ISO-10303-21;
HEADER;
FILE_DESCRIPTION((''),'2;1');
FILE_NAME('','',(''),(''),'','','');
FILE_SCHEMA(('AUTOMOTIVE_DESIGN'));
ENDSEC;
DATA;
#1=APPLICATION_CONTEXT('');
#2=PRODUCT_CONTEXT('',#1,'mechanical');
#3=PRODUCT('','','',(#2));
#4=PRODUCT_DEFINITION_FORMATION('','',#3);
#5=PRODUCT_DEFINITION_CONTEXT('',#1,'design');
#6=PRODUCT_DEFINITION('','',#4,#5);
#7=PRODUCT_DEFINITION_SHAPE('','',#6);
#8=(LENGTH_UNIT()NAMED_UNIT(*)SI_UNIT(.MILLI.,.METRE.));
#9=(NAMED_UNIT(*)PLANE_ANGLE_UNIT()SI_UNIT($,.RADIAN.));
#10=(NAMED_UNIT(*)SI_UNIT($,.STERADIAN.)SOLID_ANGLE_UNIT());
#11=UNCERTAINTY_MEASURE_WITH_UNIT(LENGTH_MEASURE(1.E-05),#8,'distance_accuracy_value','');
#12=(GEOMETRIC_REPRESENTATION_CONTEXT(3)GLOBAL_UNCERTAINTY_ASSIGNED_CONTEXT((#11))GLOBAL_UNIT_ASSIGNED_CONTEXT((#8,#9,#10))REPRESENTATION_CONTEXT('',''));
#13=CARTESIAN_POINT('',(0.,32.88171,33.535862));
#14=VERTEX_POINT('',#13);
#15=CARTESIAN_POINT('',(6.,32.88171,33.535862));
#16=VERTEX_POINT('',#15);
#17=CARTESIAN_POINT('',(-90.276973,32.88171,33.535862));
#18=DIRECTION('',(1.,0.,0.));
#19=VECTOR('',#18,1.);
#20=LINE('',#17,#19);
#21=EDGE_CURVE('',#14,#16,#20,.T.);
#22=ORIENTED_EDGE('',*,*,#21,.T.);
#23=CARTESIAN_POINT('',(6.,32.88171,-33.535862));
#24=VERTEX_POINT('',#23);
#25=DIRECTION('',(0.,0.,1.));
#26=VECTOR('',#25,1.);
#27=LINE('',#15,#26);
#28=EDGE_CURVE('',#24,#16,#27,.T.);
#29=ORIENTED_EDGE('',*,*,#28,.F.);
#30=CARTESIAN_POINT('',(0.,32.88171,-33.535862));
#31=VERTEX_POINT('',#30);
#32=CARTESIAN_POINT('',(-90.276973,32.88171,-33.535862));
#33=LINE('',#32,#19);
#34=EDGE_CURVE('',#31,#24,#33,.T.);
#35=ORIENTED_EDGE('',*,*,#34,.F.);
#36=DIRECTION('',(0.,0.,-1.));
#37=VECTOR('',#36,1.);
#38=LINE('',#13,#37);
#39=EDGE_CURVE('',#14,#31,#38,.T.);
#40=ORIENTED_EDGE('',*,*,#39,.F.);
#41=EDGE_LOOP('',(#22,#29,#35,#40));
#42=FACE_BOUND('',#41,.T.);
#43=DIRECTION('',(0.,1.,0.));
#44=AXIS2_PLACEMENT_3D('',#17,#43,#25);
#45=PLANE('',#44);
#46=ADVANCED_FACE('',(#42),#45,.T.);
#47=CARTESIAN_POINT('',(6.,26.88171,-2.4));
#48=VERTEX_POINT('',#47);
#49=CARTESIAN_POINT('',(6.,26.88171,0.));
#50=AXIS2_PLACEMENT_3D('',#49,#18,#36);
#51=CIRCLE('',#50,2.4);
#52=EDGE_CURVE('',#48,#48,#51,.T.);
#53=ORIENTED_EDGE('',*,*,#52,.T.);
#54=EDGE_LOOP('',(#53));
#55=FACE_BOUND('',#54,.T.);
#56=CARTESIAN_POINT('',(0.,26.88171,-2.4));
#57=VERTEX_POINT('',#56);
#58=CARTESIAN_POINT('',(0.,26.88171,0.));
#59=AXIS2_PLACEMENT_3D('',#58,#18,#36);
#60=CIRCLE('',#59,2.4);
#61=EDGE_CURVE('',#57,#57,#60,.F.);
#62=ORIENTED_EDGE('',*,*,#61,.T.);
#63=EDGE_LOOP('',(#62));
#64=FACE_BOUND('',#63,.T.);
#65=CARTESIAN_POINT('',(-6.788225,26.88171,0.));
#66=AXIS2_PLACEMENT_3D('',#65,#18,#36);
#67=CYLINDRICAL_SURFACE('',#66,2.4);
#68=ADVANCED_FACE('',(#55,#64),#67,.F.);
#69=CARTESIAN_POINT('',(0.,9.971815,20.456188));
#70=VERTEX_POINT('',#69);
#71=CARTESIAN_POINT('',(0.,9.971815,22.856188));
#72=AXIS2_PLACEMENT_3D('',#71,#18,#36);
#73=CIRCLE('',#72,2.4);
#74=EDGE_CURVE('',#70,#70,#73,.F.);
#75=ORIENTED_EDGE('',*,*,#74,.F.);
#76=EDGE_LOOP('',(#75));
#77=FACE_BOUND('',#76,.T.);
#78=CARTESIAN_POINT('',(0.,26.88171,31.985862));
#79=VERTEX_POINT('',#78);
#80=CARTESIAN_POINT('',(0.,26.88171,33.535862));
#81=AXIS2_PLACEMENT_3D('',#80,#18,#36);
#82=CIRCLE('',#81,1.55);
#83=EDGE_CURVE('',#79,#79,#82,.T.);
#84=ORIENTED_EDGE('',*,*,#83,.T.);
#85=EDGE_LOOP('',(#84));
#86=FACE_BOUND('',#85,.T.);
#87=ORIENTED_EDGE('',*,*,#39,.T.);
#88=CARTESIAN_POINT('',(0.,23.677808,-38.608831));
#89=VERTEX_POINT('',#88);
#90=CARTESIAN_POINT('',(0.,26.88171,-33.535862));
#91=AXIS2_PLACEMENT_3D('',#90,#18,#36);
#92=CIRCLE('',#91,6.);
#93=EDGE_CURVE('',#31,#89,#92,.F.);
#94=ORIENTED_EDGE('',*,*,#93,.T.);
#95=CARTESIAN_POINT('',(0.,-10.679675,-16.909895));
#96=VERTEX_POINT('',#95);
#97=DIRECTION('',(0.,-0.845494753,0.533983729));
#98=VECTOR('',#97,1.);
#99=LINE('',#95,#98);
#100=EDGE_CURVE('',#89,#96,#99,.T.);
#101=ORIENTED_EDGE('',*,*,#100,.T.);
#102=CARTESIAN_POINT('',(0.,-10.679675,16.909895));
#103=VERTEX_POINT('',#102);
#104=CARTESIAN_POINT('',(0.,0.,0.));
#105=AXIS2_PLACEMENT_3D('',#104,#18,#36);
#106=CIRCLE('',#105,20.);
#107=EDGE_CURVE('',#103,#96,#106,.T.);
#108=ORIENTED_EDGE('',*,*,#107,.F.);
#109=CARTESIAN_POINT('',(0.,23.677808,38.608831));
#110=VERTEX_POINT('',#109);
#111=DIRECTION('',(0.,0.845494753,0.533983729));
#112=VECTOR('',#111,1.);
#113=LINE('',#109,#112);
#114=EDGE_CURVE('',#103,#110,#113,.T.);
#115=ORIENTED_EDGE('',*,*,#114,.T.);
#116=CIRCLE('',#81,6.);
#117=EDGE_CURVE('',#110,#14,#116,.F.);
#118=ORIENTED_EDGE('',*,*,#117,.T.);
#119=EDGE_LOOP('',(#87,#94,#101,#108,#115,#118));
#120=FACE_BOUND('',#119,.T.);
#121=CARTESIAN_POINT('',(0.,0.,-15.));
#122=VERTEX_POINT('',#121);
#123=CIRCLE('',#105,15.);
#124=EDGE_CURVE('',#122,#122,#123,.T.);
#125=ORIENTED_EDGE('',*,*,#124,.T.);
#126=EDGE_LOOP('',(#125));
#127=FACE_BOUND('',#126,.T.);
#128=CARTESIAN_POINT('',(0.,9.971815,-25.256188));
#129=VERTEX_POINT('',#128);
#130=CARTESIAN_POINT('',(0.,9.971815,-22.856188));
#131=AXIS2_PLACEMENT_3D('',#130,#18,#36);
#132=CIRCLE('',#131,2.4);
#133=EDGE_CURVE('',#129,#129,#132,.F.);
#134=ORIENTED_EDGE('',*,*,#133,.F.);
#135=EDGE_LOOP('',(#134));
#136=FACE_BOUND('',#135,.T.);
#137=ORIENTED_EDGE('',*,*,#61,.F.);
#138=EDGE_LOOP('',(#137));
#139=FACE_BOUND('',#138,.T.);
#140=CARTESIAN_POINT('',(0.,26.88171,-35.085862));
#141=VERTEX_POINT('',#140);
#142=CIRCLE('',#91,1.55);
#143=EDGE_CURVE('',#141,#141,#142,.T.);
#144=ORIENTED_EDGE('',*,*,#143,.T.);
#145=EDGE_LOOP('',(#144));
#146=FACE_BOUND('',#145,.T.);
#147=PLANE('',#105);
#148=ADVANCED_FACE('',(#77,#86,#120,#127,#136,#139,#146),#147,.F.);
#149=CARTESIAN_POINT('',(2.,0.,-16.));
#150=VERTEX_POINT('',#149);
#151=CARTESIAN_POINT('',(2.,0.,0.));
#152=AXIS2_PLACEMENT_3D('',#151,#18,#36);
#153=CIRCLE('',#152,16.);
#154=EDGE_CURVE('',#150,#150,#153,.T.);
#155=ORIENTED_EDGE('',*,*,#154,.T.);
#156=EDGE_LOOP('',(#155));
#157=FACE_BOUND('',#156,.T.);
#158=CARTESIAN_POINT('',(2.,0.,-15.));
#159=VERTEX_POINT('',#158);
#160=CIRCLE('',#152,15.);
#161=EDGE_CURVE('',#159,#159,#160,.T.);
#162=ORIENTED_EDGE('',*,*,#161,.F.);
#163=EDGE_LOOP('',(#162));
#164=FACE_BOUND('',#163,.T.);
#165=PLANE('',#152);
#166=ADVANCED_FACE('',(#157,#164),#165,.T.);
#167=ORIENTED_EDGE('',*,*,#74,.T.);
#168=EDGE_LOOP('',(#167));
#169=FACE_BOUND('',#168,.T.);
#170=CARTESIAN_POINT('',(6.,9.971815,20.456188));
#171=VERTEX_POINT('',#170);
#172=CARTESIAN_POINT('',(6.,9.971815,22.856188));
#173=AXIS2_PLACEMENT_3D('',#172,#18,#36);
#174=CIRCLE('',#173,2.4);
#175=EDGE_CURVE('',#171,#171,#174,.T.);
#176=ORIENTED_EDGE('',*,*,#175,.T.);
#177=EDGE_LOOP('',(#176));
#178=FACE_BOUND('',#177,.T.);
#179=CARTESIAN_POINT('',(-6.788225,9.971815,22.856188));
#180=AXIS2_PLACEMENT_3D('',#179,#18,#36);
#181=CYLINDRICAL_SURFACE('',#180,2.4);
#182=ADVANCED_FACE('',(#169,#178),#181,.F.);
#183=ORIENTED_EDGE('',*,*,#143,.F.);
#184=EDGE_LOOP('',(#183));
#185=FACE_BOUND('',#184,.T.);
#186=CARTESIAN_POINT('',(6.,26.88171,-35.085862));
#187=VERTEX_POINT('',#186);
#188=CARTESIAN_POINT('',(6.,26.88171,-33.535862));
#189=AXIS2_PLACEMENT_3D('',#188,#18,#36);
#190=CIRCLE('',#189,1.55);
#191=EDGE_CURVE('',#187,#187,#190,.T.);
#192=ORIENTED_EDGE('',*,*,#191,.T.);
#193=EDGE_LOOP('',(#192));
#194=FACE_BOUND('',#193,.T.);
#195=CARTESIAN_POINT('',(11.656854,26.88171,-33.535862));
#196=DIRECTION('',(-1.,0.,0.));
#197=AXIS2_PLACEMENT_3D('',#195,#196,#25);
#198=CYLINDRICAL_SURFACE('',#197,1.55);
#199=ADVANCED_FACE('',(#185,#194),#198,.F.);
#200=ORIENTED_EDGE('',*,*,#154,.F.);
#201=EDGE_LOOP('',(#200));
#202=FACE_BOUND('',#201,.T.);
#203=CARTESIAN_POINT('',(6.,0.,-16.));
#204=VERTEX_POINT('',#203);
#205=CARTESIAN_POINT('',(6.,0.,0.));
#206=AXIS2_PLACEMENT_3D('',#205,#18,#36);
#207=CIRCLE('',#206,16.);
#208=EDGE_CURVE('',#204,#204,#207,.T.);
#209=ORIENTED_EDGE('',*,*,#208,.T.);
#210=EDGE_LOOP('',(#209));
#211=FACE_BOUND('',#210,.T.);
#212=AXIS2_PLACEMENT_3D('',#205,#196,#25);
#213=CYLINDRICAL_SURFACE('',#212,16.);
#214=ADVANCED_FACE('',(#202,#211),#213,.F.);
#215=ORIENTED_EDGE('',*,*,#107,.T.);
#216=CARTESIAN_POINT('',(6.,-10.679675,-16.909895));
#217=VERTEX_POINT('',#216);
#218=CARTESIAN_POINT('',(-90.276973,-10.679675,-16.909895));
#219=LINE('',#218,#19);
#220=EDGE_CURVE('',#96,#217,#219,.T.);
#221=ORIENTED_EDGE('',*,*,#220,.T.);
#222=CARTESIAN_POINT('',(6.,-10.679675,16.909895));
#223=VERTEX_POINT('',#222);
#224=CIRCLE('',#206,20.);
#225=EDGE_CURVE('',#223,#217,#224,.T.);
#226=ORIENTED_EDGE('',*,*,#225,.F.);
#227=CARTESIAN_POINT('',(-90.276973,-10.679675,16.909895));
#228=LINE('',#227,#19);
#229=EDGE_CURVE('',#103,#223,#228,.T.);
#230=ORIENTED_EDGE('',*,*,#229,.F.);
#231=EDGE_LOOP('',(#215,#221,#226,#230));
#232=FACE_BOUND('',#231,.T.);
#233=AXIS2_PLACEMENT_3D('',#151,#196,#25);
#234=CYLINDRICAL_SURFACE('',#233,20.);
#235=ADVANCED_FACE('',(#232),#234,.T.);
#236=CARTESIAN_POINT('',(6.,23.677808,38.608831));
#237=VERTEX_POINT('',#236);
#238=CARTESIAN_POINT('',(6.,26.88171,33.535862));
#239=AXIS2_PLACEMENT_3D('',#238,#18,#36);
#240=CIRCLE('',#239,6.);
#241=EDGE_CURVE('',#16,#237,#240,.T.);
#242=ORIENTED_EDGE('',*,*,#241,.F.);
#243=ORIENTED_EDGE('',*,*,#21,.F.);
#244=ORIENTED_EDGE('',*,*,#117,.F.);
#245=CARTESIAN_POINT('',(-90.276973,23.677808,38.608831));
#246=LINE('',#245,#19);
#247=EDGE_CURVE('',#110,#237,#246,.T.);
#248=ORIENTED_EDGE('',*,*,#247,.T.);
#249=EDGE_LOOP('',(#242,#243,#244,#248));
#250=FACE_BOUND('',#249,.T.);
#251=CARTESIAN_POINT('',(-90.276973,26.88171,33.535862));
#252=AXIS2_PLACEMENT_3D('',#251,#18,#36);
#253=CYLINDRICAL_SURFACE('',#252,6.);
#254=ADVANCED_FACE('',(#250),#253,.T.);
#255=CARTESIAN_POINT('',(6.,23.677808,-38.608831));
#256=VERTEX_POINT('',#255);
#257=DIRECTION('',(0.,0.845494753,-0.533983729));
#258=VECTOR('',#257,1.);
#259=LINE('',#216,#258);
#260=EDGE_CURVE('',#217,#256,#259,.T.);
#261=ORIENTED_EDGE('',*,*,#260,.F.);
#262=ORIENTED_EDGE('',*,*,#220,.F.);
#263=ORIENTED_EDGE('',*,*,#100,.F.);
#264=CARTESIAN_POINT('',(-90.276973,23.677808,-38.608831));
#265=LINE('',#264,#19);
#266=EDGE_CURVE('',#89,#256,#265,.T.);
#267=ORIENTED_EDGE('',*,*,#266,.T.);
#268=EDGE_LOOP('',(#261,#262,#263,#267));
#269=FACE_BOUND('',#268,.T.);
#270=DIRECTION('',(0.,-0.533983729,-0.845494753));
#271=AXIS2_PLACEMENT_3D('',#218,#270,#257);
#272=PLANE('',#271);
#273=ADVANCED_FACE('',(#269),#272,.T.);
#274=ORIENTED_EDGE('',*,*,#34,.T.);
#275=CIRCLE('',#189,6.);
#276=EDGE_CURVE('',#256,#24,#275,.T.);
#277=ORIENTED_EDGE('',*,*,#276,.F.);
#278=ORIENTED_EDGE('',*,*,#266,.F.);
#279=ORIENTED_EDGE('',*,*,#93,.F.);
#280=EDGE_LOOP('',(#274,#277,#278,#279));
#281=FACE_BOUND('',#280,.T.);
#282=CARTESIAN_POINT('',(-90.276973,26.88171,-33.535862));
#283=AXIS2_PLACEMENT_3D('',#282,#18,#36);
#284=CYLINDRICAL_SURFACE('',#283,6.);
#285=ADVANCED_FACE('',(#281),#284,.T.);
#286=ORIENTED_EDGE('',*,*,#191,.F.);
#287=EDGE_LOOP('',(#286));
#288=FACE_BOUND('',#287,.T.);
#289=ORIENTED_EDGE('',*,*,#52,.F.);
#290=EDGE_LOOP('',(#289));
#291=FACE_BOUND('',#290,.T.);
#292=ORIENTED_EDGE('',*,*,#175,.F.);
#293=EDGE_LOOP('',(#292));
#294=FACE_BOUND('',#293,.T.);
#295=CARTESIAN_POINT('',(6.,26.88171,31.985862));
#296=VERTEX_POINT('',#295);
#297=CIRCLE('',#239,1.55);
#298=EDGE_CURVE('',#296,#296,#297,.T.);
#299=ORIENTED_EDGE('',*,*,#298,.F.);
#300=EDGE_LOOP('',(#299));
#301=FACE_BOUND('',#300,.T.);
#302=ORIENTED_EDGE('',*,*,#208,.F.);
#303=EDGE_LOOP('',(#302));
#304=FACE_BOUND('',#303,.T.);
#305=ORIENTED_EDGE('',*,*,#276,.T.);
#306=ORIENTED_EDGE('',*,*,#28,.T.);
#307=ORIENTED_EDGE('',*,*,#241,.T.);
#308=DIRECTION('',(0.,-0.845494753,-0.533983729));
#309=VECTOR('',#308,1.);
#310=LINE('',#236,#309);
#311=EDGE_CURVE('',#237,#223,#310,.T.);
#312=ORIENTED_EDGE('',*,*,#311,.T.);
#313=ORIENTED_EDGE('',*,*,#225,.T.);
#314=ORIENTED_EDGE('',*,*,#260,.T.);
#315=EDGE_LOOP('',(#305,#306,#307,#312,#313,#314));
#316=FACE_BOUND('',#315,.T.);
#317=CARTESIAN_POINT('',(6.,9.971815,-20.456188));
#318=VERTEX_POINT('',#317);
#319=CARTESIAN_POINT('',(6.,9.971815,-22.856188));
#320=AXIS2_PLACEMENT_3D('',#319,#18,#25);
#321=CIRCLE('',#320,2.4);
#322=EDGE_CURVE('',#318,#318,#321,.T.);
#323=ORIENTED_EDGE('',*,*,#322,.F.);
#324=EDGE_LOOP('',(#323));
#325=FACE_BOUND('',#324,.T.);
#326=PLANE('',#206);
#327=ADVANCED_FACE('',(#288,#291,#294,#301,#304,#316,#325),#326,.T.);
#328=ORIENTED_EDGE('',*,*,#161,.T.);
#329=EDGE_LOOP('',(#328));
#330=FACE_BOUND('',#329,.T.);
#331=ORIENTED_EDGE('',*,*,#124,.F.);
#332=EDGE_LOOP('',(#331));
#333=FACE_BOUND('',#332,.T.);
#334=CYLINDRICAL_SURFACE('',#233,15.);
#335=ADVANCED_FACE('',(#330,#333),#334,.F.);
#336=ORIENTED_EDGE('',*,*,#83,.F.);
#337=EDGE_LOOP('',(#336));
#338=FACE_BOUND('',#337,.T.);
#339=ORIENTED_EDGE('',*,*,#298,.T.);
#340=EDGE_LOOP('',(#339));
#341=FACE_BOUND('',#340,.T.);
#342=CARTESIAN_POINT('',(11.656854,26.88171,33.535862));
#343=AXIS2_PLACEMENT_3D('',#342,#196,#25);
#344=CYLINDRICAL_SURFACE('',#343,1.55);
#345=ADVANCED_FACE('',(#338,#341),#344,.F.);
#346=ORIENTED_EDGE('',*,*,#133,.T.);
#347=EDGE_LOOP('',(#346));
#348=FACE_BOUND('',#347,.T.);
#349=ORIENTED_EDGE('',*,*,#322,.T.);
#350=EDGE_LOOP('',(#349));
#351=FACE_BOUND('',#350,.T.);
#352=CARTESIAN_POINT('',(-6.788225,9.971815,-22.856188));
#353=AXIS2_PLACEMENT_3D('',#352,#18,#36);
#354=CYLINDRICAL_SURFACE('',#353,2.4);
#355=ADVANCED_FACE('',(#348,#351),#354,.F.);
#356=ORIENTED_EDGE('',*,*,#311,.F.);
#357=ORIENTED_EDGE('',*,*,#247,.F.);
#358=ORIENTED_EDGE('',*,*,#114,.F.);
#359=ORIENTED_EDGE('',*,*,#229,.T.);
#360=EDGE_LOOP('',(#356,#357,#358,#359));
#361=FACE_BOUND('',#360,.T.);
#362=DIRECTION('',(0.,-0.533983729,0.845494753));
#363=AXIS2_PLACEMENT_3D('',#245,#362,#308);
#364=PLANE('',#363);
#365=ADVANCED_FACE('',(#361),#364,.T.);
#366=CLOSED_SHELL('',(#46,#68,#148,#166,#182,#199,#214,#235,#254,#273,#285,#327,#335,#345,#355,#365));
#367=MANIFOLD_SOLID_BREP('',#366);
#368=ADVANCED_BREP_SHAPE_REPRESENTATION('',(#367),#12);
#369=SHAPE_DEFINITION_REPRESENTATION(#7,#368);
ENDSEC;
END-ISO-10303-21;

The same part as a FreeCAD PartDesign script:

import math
import FreeCAD as App
import Part
import Sketcher

V = App.Vector

doc = App.newDocument("Part")
params = doc.addObject("Spreadsheet::Sheet", "Params")
for row, (alias, value) in enumerate([
    ("sketch1_diameter", "40 mm"),
    ("sketch1_diameter2", "30 mm"),
    ("pad1_length", "2 mm"),
    ("sketch2_diameter", "40 mm"),
    ("sketch2_diameter2", "32 mm"),
    ("pad2_length", "4 mm"),
    ("sketch3_diameter", "4 mm"),
    ("sketch3_radius", "20 mm"),
    ("sketch3_radius2", "6 mm"),
    ("pad3_length", "6 mm"),
    ("sketch4_diameter", "4.8 mm"),
    ("pocket1_length", "6 mm"),
    ("sketch5_diameter", "4 mm"),
    ("sketch5_diameter2", "3.1 mm"),
    ("pad4_length", "6 mm"),
], start=1):
    params.set(f"A{row}", alias)
    params.set(f"B{row}", "=" + value)
    params.setAlias(f"B{row}", alias)

body = doc.addObject("PartDesign::Body", "Body")

# Sketch on YZ plane
sketch1 = body.newObject("Sketcher::SketchObject", "Sketch")
sketch1.AttachmentSupport = (doc.getObject("YZ_Plane"), [""])
sketch1.MapMode = "FlatFace"
sketch1.addGeometry(Part.Circle(V(0, 0, 0), V(0, 0, 1), 20), False)
sketch1.addGeometry(Part.Circle(V(0, 0, 0), V(0, 0, 1), 15), False)
sketch1.addConstraint(Sketcher.Constraint("Coincident", 0, 3, -1, 1))
sketch1.addConstraint(Sketcher.Constraint("Coincident", 1, 3, -1, 1))
sketch1.addConstraint(Sketcher.Constraint("Diameter", 0, 40.0))
sketch1.addConstraint(Sketcher.Constraint("Diameter", 1, 30.0))
sketch1.setExpression("Constraints[2]", "Params.sketch1_diameter")
sketch1.setExpression("Constraints[3]", "Params.sketch1_diameter2")
pad1 = body.newObject("PartDesign::Pad", "Pad")
pad1.Profile = sketch1
pad1.setExpression("Length", "Params.pad1_length")

# Sketch on YZ plane
sketch2 = body.newObject("Sketcher::SketchObject", "Sketch001")
sketch2.AttachmentSupport = (doc.getObject("YZ_Plane"), [""])
sketch2.MapMode = "FlatFace"
sketch2.AttachmentOffset = App.Placement(V(0, 0, 2), App.Rotation())
sketch2.addGeometry(Part.Circle(V(0, 0, 0), V(0, 0, 1), 20), False)
sketch2.addGeometry(Part.Circle(V(0, 0, 0), V(0, 0, 1), 16), False)
sketch2.addConstraint(Sketcher.Constraint("Coincident", 0, 3, -1, 1))
sketch2.addConstraint(Sketcher.Constraint("Coincident", 1, 3, -1, 1))
sketch2.addConstraint(Sketcher.Constraint("Diameter", 0, 40.0))
sketch2.addConstraint(Sketcher.Constraint("Diameter", 1, 32.0))
sketch2.setExpression("Constraints[2]", "Params.sketch2_diameter")
sketch2.setExpression("Constraints[3]", "Params.sketch2_diameter2")
pad2 = body.newObject("PartDesign::Pad", "Pad001")
pad2.Profile = sketch2
pad2.setExpression("Length", "Params.pad2_length")

# Sketch on YZ plane
sketch3 = body.newObject("Sketcher::SketchObject", "Sketch002")
sketch3.AttachmentSupport = (doc.getObject("YZ_Plane"), [""])
sketch3.MapMode = "FlatFace"
sketch3.AttachmentOffset = App.Placement(V(0, 0, 6), App.Rotation())
sketch3.addGeometry(Part.LineSegment(V(23.7, 38.6, 0), V(-10.7, 16.9, 0)), False)
sketch3.addGeometry(Part.ArcOfCircle(Part.Circle(V(0, 0, 0), V(0, 0, 1), 20), math.radians(-122), math.radians(122)), False)
sketch3.addGeometry(Part.LineSegment(V(-10.7, -16.9, 0), V(23.7, -38.6, 0)), False)
sketch3.addGeometry(Part.ArcOfCircle(Part.Circle(V(26.9, -33.5, 0), V(0, 0, 1), 6), math.radians(-122), math.radians(0)), False)
sketch3.addGeometry(Part.LineSegment(V(32.9, -33.5, 0), V(32.9, 33.5, 0)), False)
sketch3.addGeometry(Part.ArcOfCircle(Part.Circle(V(26.9, 33.5, 0), V(0, 0, 1), 6), math.radians(0), math.radians(122)), False)
sketch3.addGeometry(Part.Circle(V(26.9, 33.5, 0), V(0, 0, 1), 2), False)
sketch3.addGeometry(Part.Circle(V(26.9, -33.5, 0), V(0, 0, 1), 2), False)
sketch3.addConstraint(Sketcher.Constraint("Tangent", 0, 2, 1, 2))
sketch3.addConstraint(Sketcher.Constraint("Tangent", 1, 1, 2, 1))
sketch3.addConstraint(Sketcher.Constraint("Tangent", 2, 2, 3, 1))
sketch3.addConstraint(Sketcher.Constraint("Tangent", 3, 2, 4, 1))
sketch3.addConstraint(Sketcher.Constraint("Tangent", 4, 2, 5, 1))
sketch3.addConstraint(Sketcher.Constraint("Tangent", 5, 2, 0, 1))
sketch3.addConstraint(Sketcher.Constraint("Vertical", 4))
sketch3.addConstraint(Sketcher.Constraint("Coincident", 1, 3, -1, 1))
sketch3.addConstraint(Sketcher.Constraint("Coincident", 6, 3, 5, 3))
sketch3.addConstraint(Sketcher.Constraint("Coincident", 7, 3, 3, 3))
sketch3.addConstraint(Sketcher.Constraint("Equal", 3, 5))
sketch3.addConstraint(Sketcher.Constraint("Equal", 6, 7))
sketch3.addConstraint(Sketcher.Constraint("Vertical", 0, 2, 1, 1))
sketch3.addConstraint(Sketcher.Constraint("Diameter", 6, 4.0))
sketch3.addConstraint(Sketcher.Constraint("Radius", 1, 20.0))
sketch3.addConstraint(Sketcher.Constraint("Radius", 3, 6.0))
sketch3.addConstraint(Sketcher.Constraint("Distance", 0, 40.63595))
sketch3.addConstraint(Sketcher.Constraint("DistanceY", 4, 1, 4, 2, 67.071725))
sketch3.setExpression("Constraints[13]", "Params.sketch3_diameter")
sketch3.setExpression("Constraints[14]", "Params.sketch3_radius")
sketch3.setExpression("Constraints[15]", "Params.sketch3_radius2")
pad3 = body.newObject("PartDesign::Pad", "Pad002")
pad3.Profile = sketch3
pad3.setExpression("Length", "Params.pad3_length")
pad3.Reversed = True

# Sketch on YZ plane
sketch4 = body.newObject("Sketcher::SketchObject", "Sketch003")
sketch4.AttachmentSupport = (doc.getObject("YZ_Plane"), [""])
sketch4.MapMode = "FlatFace"
sketch4.AttachmentOffset = App.Placement(V(0, 0, 6), App.Rotation())
sketch4.addGeometry(Part.Circle(V(10, 22.9, 0), V(0, 0, 1), 2.4), False)
sketch4.addGeometry(Part.Circle(V(10, -22.9, 0), V(0, 0, 1), 2.4), False)
sketch4.addGeometry(Part.Circle(V(26.9, 0, 0), V(0, 0, 1), 2.4), False)
sketch4.addConstraint(Sketcher.Constraint("Equal", 0, 1))
sketch4.addConstraint(Sketcher.Constraint("Equal", 1, 2))
sketch4.addConstraint(Sketcher.Constraint("Symmetric", 0, 3, 1, 3, -1))
sketch4.addConstraint(Sketcher.Constraint("PointOnObject", 2, 3, -1))
sketch4.addConstraint(Sketcher.Constraint("Diameter", 0, 4.8))
sketch4.addConstraint(Sketcher.Constraint("DistanceX", -1, 1, 2, 3, 26.88171))
sketch4.addConstraint(Sketcher.Constraint("DistanceX", -1, 1, 0, 3, 9.971815))
sketch4.addConstraint(Sketcher.Constraint("DistanceY", -1, 1, 0, 3, 22.856188))
sketch4.setExpression("Constraints[4]", "Params.sketch4_diameter")
pocket1 = body.newObject("PartDesign::Pocket", "Pocket")
pocket1.Profile = sketch4
pocket1.setExpression("Length", "Params.pocket1_length")

# Sketch on YZ plane
sketch5 = body.newObject("Sketcher::SketchObject", "Sketch004")
sketch5.AttachmentSupport = (doc.getObject("YZ_Plane"), [""])
sketch5.MapMode = "FlatFace"
sketch5.addGeometry(Part.Circle(V(26.9, -33.5, 0), V(0, 0, 1), 2), False)
sketch5.addGeometry(Part.Circle(V(26.9, -33.5, 0), V(0, 0, 1), 1.6), False)
sketch5.addGeometry(Part.Circle(V(26.9, 33.5, 0), V(0, 0, 1), 2), False)
sketch5.addGeometry(Part.Circle(V(26.9, 33.5, 0), V(0, 0, 1), 1.6), False)
sketch5.addConstraint(Sketcher.Constraint("Coincident", 1, 3, 0, 3))
sketch5.addConstraint(Sketcher.Constraint("Coincident", 3, 3, 2, 3))
sketch5.addConstraint(Sketcher.Constraint("Equal", 0, 2))
sketch5.addConstraint(Sketcher.Constraint("Equal", 1, 3))
sketch5.addConstraint(Sketcher.Constraint("Symmetric", 0, 3, 2, 3, -1))
sketch5.addConstraint(Sketcher.Constraint("Diameter", 0, 4.0))
sketch5.addConstraint(Sketcher.Constraint("Diameter", 1, 3.1))
sketch5.addConstraint(Sketcher.Constraint("DistanceX", -1, 1, 0, 3, 26.88171))
sketch5.addConstraint(Sketcher.Constraint("DistanceY", 0, 3, -1, 1, 33.535862))
sketch5.setExpression("Constraints[5]", "Params.sketch5_diameter")
sketch5.setExpression("Constraints[6]", "Params.sketch5_diameter2")
pad4 = body.newObject("PartDesign::Pad", "Pad003")
pad4.Profile = sketch5
pad4.setExpression("Length", "Params.pad4_length")

doc.recompute()
